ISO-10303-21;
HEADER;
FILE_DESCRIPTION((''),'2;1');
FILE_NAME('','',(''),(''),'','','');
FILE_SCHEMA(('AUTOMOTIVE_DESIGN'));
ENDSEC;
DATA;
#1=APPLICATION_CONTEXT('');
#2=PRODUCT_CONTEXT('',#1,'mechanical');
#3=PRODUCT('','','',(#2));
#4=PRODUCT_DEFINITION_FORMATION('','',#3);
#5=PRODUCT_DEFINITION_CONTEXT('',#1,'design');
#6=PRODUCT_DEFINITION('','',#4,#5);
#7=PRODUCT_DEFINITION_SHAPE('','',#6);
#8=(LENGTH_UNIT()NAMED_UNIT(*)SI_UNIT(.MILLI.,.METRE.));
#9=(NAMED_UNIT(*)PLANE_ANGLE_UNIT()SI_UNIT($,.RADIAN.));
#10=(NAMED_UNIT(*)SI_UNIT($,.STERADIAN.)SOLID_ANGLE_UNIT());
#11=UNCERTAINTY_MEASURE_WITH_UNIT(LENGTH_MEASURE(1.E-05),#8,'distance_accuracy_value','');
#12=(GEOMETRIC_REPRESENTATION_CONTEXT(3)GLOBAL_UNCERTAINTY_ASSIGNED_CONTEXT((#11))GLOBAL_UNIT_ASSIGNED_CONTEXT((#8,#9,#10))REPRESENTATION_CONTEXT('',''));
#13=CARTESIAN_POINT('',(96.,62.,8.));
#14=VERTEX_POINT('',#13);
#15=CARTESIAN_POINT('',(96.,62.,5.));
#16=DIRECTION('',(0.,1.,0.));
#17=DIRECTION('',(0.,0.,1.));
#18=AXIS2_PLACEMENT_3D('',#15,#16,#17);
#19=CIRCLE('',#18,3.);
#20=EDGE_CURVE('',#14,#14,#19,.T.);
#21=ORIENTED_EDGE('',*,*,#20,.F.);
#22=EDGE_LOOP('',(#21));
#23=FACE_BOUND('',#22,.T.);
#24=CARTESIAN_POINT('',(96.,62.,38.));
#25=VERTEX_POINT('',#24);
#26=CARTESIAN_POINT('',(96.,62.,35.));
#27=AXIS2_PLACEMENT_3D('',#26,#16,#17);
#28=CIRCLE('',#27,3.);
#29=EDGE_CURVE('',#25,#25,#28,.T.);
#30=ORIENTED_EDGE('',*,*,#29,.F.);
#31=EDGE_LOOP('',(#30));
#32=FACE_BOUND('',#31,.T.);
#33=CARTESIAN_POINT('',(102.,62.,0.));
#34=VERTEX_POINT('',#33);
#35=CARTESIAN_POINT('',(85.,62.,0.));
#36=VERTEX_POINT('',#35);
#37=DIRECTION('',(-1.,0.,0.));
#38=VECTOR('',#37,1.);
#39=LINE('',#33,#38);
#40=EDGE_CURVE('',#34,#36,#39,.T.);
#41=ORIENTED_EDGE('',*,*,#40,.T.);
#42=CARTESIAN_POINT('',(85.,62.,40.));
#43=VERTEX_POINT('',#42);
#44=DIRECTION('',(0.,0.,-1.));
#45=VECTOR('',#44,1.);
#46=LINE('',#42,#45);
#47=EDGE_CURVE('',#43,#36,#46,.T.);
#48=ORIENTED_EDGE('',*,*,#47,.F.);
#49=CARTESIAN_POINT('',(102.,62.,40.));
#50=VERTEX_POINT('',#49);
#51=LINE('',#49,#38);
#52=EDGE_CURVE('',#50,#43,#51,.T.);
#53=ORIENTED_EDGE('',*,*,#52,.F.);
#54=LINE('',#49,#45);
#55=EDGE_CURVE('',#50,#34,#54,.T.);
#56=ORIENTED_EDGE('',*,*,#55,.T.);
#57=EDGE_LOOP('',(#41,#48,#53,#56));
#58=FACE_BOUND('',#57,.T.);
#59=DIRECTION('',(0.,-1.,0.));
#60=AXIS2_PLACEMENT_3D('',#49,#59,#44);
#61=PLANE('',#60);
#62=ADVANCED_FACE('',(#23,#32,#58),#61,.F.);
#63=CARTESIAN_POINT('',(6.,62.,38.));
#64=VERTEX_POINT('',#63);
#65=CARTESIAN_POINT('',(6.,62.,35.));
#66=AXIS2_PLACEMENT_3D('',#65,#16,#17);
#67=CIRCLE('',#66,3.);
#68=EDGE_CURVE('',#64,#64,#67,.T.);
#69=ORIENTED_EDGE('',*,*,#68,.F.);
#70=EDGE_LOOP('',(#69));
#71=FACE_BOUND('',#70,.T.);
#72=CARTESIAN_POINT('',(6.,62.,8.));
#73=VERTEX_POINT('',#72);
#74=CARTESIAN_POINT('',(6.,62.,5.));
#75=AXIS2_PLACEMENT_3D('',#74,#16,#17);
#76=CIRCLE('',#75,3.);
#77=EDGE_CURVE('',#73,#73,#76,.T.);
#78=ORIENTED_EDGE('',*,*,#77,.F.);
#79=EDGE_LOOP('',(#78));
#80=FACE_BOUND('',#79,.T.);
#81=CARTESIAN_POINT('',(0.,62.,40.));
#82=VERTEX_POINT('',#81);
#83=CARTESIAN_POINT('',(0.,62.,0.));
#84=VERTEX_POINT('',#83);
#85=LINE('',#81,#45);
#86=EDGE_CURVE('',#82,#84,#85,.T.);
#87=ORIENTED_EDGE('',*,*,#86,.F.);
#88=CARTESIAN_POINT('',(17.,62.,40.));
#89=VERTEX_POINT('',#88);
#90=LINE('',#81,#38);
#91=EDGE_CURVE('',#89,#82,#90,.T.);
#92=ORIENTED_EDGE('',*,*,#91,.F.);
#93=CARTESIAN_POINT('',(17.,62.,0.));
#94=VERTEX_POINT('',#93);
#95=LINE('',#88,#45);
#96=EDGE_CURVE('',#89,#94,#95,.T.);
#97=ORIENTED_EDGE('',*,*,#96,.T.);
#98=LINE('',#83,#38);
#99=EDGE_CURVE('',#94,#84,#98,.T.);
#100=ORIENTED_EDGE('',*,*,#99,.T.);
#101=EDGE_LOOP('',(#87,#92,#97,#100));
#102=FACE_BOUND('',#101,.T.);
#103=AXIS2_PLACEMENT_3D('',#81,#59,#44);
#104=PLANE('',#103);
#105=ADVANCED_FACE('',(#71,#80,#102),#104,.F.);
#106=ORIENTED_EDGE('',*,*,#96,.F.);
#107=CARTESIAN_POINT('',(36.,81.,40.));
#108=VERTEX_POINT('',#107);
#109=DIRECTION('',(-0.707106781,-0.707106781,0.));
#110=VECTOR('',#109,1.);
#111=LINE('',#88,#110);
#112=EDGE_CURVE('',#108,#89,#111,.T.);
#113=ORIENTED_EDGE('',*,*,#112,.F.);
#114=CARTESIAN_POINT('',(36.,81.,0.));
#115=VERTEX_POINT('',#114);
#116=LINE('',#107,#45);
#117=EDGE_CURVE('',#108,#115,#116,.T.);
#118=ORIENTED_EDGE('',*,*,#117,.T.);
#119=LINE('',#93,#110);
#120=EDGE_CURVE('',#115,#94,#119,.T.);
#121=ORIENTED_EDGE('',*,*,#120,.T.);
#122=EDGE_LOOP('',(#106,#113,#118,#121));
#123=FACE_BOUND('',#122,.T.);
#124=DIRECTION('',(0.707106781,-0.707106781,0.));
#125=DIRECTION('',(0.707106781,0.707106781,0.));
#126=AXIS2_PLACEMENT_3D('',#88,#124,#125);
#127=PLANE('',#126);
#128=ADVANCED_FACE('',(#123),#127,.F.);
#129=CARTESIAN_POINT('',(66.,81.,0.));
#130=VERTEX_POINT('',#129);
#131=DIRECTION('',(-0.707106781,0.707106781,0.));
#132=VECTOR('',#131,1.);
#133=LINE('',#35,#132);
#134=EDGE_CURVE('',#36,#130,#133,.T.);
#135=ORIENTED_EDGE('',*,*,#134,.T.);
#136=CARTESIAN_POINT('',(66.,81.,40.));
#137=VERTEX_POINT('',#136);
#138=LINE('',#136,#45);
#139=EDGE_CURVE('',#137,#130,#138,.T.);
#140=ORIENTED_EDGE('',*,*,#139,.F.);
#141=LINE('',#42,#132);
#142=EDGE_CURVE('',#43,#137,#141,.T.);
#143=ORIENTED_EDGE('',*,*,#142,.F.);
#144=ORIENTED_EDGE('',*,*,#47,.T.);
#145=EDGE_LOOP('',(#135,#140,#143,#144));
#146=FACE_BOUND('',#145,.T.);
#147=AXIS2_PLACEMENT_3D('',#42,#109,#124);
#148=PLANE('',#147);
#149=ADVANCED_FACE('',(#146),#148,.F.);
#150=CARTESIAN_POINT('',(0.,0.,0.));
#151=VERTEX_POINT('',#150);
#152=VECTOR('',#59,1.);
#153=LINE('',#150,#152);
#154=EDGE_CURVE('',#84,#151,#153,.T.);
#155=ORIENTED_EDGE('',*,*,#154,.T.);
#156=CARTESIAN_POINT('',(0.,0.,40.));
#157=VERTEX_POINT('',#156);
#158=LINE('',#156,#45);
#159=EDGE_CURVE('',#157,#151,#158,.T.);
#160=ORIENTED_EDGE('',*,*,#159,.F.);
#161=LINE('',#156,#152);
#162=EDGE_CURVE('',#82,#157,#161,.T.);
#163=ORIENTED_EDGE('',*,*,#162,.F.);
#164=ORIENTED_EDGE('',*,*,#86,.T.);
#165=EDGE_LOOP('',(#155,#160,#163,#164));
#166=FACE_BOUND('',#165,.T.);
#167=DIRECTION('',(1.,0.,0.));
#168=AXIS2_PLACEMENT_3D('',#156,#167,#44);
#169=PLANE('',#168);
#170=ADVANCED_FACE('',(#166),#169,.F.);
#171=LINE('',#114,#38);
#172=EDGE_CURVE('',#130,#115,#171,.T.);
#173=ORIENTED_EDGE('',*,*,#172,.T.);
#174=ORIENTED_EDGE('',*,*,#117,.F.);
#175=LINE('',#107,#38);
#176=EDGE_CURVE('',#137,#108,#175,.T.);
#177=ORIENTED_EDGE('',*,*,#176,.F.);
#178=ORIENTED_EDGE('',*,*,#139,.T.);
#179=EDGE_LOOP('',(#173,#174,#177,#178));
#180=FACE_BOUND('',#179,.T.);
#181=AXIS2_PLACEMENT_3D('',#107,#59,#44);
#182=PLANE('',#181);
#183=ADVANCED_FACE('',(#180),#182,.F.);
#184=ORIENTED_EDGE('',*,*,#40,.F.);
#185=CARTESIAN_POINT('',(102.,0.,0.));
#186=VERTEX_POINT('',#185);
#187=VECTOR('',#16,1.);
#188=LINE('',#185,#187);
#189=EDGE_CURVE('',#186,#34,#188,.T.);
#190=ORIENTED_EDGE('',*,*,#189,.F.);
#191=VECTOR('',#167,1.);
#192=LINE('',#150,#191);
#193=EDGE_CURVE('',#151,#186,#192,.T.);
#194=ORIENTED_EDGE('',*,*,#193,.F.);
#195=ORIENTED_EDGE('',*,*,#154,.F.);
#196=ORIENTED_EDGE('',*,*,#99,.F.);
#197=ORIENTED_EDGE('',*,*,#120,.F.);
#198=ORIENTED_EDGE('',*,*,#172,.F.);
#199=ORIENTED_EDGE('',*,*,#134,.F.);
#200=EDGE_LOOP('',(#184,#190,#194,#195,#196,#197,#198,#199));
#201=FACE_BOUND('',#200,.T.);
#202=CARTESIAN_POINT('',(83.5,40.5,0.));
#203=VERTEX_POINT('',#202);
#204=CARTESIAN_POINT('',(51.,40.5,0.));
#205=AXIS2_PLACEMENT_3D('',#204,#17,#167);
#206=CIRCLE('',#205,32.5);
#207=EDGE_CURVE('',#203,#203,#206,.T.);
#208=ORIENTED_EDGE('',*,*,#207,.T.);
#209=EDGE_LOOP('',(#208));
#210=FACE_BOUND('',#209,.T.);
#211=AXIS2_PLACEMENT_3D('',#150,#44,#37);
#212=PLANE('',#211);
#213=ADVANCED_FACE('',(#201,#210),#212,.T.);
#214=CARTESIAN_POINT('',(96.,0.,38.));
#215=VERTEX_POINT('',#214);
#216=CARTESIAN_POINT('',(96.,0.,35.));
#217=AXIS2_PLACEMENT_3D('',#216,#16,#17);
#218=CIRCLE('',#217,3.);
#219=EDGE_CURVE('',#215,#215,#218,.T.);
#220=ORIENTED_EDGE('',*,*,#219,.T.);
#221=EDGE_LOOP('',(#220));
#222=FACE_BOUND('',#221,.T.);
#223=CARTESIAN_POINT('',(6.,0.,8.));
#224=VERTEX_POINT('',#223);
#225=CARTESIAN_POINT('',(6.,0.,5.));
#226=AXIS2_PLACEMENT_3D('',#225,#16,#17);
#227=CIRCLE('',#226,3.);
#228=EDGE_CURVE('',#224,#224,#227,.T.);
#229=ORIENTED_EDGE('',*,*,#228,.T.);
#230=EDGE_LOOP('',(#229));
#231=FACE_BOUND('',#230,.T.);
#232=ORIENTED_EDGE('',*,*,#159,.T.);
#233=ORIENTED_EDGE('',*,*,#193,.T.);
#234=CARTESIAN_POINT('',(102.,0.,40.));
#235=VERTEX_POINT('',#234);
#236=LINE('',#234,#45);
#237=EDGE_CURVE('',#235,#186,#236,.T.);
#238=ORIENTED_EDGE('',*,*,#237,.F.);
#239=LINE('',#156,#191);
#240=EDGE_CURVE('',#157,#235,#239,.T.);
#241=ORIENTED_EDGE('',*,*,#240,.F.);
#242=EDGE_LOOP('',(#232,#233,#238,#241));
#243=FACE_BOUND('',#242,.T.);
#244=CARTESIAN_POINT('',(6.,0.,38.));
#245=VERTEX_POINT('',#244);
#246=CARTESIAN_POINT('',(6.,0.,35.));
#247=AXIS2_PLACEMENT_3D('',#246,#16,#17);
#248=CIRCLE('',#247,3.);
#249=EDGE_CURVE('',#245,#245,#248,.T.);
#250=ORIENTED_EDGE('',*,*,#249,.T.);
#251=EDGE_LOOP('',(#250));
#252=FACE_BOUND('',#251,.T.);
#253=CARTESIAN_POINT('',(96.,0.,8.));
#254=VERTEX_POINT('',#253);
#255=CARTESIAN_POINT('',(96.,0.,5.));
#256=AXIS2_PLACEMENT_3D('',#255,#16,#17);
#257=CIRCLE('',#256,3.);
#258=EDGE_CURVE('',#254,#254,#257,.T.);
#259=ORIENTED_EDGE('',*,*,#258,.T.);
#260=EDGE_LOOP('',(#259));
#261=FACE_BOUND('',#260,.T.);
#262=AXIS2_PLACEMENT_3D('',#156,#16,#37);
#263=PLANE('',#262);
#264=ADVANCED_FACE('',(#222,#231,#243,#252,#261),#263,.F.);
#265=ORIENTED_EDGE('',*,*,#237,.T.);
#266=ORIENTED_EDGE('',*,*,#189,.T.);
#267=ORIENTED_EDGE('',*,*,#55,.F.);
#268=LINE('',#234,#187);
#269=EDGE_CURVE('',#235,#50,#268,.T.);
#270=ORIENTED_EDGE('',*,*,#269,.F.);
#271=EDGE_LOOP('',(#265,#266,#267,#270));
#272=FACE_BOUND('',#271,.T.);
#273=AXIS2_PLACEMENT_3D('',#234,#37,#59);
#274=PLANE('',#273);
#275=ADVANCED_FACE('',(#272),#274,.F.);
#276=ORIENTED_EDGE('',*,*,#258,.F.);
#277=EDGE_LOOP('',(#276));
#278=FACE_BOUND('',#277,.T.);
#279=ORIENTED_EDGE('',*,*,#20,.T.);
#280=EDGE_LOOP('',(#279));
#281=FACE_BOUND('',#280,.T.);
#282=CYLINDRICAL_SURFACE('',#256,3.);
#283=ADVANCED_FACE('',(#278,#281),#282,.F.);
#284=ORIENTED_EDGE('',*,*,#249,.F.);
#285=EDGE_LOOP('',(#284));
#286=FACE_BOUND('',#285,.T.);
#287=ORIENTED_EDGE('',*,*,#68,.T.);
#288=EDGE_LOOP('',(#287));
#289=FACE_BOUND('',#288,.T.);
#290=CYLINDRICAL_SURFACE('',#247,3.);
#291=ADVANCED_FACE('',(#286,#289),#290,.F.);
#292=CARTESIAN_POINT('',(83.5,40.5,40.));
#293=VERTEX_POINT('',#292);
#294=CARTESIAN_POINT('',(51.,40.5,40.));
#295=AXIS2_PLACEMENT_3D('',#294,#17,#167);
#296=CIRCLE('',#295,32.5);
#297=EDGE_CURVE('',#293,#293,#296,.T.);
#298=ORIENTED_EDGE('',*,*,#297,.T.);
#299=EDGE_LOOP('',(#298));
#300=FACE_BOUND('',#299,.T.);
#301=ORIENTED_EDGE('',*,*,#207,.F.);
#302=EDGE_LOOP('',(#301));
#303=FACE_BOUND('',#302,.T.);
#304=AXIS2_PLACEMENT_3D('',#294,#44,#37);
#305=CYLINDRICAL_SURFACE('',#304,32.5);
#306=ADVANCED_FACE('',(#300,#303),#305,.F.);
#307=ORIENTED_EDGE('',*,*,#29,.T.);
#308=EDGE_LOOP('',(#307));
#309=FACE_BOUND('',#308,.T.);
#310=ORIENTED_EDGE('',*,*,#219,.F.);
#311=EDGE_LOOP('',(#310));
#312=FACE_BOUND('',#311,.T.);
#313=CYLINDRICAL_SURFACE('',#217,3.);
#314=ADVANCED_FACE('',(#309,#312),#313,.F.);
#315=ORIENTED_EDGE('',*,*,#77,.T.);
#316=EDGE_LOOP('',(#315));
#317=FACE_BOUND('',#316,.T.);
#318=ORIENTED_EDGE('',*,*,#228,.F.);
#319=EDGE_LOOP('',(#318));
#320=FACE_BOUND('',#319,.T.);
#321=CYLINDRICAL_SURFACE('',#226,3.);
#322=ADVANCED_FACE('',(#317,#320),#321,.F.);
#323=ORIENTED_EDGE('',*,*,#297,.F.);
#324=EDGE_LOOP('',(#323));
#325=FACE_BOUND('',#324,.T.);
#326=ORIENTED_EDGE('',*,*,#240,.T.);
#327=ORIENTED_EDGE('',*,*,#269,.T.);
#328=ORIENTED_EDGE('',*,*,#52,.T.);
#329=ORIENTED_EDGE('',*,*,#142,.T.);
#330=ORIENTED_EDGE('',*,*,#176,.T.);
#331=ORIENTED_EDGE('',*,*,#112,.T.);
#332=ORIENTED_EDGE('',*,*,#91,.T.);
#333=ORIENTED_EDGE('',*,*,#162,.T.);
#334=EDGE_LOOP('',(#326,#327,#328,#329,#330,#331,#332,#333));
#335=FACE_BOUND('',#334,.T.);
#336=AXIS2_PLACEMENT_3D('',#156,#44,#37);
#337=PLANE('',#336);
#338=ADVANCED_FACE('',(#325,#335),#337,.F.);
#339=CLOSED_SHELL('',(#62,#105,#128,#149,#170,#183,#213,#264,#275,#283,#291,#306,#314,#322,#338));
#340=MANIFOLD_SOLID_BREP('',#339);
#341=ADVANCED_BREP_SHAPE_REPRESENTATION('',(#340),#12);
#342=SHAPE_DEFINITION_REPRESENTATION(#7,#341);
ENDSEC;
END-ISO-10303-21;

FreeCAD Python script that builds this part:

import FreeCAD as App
import Part
import Sketcher

V = App.Vector

doc = App.newDocument("Part")
params = doc.addObject("Spreadsheet::Sheet", "Params")
for row, (alias, value) in enumerate([
    ("sketch1_diameter", "65 mm"),
    ("sketch1_width", "102 mm"),
    ("sketch1_width2", "17 mm"),
    ("sketch1_width3", "30 mm"),
    ("sketch1_height", "62 mm"),
    ("pad1_length", "40 mm"),
    ("sketch2_diameter", "6 mm"),
], start=1):
    params.set(f"A{row}", alias)
    params.set(f"B{row}", "=" + value)
    params.setAlias(f"B{row}", alias)

body = doc.addObject("PartDesign::Body", "Body")

sketch1 = doc.addObject("Sketcher::SketchObject", "Sketch")
body.addObject(sketch1)
sketch1.AttachmentSupport = (doc.XY_Plane, [""])
sketch1.MapMode = "FlatFace"
sketch1.addGeometry([
    Part.LineSegment(V(0, 0, 0), V(102, 0, 0)),
    Part.LineSegment(V(102, 0, 0), V(102, 62, 0)),
    Part.LineSegment(V(102, 62, 0), V(85, 62, 0)),
    Part.LineSegment(V(85, 62, 0), V(66, 81, 0)),
    Part.LineSegment(V(66, 81, 0), V(36, 81, 0)),
    Part.LineSegment(V(36, 81, 0), V(17, 62, 0)),
    Part.LineSegment(V(17, 62, 0), V(0, 62, 0)),
    Part.LineSegment(V(0, 62, 0), V(0, 0, 0)),
    Part.Circle(V(51, 40.5, 0), V(0, 0, 1), 32.5),
], False)
sketch1.addConstraint([
    Sketcher.Constraint("Coincident", 0, 2, 1, 1),
    Sketcher.Constraint("Coincident", 1, 2, 2, 1),
    Sketcher.Constraint("Coincident", 2, 2, 3, 1),
    Sketcher.Constraint("Coincident", 3, 2, 4, 1),
    Sketcher.Constraint("Coincident", 4, 2, 5, 1),
    Sketcher.Constraint("Coincident", 5, 2, 6, 1),
    Sketcher.Constraint("Coincident", 6, 2, 7, 1),
    Sketcher.Constraint("Coincident", 7, 2, 0, 1),
    Sketcher.Constraint("Horizontal", 0),
    Sketcher.Constraint("Vertical", 1),
    Sketcher.Constraint("Horizontal", 2),
    Sketcher.Constraint("Horizontal", 4),
    Sketcher.Constraint("Horizontal", 6),
    Sketcher.Constraint("Vertical", 7),
    Sketcher.Constraint("Coincident", 7, 2, -1, 1),
    Sketcher.Constraint("Perpendicular", 3, 5),
    Sketcher.Constraint("Horizontal", 2, 2, 5, 2),
    Sketcher.Constraint("Equal", 2, 6),
    Sketcher.Constraint("Equal", 3, 5),
    Sketcher.Constraint("Diameter", 8, 65.0),
    Sketcher.Constraint("DistanceX", 0, 1, 0, 2, 102.0),
    Sketcher.Constraint("DistanceX", 2, 2, 2, 1, 17.0),
    Sketcher.Constraint("DistanceX", 4, 2, 4, 1, 30.0),
    Sketcher.Constraint("DistanceY", 1, 1, 1, 2, 62.0),
    Sketcher.Constraint("DistanceX", -1, 1, 8, 3, 51.0),
    Sketcher.Constraint("DistanceY", -1, 1, 8, 3, 40.5),
])
sketch1.setExpression("Constraints[19]", "Params.sketch1_diameter")
sketch1.setExpression("Constraints[20]", "Params.sketch1_width")
sketch1.setExpression("Constraints[21]", "Params.sketch1_width2")
sketch1.setExpression("Constraints[22]", "Params.sketch1_width3")
sketch1.setExpression("Constraints[23]", "Params.sketch1_height")
pad1 = doc.addObject("PartDesign::Pad", "Pad")
body.addObject(pad1)
pad1.Profile = sketch1
pad1.setExpression("Length", "Params.pad1_length")

sketch2 = doc.addObject("Sketcher::SketchObject", "Sketch001")
body.addObject(sketch2)
sketch2.AttachmentSupport = (doc.XZ_Plane, [""])
sketch2.MapMode = "FlatFace"
sketch2.AttachmentOffset = App.Placement(V(0, 0, -62), App.Rotation())
sketch2.addGeometry([
    Part.Circle(V(6, 5, 0), V(0, 0, 1), 3),
    Part.Circle(V(6, 35, 0), V(0, 0, 1), 3),
    Part.Circle(V(96, 5, 0), V(0, 0, 1), 3),
    Part.Circle(V(96, 35, 0), V(0, 0, 1), 3),
], False)
sketch2.addConstraint([
    Sketcher.Constraint("Equal", 0, 1),
    Sketcher.Constraint("Equal", 1, 2),
    Sketcher.Constraint("Equal", 2, 3),
    Sketcher.Constraint("Horizontal", 0, 3, 2, 3),
    Sketcher.Constraint("Horizontal", 1, 3, 3, 3),
    Sketcher.Constraint("Vertical", 0, 3, 1, 3),
    Sketcher.Constraint("Vertical", 2, 3, 3, 3),
    Sketcher.Constraint("Diameter", 0, 6.0),
    Sketcher.Constraint("DistanceX", -1, 1, 0, 3, 6.0),
    Sketcher.Constraint("DistanceY", -1, 1, 0, 3, 5.0),
    Sketcher.Constraint("DistanceY", -1, 1, 1, 3, 35.0),
    Sketcher.Constraint("DistanceX", -1, 1, 2, 3, 96.0),
])
sketch2.setExpression("Constraints[7]", "Params.sketch2_diameter")
pocket1 = doc.addObject("PartDesign::Pocket", "Pocket")
body.addObject(pocket1)
pocket1.Profile = sketch2
pocket1.Type = "ThroughAll"
pocket1.Reversed = True

doc.recompute()
